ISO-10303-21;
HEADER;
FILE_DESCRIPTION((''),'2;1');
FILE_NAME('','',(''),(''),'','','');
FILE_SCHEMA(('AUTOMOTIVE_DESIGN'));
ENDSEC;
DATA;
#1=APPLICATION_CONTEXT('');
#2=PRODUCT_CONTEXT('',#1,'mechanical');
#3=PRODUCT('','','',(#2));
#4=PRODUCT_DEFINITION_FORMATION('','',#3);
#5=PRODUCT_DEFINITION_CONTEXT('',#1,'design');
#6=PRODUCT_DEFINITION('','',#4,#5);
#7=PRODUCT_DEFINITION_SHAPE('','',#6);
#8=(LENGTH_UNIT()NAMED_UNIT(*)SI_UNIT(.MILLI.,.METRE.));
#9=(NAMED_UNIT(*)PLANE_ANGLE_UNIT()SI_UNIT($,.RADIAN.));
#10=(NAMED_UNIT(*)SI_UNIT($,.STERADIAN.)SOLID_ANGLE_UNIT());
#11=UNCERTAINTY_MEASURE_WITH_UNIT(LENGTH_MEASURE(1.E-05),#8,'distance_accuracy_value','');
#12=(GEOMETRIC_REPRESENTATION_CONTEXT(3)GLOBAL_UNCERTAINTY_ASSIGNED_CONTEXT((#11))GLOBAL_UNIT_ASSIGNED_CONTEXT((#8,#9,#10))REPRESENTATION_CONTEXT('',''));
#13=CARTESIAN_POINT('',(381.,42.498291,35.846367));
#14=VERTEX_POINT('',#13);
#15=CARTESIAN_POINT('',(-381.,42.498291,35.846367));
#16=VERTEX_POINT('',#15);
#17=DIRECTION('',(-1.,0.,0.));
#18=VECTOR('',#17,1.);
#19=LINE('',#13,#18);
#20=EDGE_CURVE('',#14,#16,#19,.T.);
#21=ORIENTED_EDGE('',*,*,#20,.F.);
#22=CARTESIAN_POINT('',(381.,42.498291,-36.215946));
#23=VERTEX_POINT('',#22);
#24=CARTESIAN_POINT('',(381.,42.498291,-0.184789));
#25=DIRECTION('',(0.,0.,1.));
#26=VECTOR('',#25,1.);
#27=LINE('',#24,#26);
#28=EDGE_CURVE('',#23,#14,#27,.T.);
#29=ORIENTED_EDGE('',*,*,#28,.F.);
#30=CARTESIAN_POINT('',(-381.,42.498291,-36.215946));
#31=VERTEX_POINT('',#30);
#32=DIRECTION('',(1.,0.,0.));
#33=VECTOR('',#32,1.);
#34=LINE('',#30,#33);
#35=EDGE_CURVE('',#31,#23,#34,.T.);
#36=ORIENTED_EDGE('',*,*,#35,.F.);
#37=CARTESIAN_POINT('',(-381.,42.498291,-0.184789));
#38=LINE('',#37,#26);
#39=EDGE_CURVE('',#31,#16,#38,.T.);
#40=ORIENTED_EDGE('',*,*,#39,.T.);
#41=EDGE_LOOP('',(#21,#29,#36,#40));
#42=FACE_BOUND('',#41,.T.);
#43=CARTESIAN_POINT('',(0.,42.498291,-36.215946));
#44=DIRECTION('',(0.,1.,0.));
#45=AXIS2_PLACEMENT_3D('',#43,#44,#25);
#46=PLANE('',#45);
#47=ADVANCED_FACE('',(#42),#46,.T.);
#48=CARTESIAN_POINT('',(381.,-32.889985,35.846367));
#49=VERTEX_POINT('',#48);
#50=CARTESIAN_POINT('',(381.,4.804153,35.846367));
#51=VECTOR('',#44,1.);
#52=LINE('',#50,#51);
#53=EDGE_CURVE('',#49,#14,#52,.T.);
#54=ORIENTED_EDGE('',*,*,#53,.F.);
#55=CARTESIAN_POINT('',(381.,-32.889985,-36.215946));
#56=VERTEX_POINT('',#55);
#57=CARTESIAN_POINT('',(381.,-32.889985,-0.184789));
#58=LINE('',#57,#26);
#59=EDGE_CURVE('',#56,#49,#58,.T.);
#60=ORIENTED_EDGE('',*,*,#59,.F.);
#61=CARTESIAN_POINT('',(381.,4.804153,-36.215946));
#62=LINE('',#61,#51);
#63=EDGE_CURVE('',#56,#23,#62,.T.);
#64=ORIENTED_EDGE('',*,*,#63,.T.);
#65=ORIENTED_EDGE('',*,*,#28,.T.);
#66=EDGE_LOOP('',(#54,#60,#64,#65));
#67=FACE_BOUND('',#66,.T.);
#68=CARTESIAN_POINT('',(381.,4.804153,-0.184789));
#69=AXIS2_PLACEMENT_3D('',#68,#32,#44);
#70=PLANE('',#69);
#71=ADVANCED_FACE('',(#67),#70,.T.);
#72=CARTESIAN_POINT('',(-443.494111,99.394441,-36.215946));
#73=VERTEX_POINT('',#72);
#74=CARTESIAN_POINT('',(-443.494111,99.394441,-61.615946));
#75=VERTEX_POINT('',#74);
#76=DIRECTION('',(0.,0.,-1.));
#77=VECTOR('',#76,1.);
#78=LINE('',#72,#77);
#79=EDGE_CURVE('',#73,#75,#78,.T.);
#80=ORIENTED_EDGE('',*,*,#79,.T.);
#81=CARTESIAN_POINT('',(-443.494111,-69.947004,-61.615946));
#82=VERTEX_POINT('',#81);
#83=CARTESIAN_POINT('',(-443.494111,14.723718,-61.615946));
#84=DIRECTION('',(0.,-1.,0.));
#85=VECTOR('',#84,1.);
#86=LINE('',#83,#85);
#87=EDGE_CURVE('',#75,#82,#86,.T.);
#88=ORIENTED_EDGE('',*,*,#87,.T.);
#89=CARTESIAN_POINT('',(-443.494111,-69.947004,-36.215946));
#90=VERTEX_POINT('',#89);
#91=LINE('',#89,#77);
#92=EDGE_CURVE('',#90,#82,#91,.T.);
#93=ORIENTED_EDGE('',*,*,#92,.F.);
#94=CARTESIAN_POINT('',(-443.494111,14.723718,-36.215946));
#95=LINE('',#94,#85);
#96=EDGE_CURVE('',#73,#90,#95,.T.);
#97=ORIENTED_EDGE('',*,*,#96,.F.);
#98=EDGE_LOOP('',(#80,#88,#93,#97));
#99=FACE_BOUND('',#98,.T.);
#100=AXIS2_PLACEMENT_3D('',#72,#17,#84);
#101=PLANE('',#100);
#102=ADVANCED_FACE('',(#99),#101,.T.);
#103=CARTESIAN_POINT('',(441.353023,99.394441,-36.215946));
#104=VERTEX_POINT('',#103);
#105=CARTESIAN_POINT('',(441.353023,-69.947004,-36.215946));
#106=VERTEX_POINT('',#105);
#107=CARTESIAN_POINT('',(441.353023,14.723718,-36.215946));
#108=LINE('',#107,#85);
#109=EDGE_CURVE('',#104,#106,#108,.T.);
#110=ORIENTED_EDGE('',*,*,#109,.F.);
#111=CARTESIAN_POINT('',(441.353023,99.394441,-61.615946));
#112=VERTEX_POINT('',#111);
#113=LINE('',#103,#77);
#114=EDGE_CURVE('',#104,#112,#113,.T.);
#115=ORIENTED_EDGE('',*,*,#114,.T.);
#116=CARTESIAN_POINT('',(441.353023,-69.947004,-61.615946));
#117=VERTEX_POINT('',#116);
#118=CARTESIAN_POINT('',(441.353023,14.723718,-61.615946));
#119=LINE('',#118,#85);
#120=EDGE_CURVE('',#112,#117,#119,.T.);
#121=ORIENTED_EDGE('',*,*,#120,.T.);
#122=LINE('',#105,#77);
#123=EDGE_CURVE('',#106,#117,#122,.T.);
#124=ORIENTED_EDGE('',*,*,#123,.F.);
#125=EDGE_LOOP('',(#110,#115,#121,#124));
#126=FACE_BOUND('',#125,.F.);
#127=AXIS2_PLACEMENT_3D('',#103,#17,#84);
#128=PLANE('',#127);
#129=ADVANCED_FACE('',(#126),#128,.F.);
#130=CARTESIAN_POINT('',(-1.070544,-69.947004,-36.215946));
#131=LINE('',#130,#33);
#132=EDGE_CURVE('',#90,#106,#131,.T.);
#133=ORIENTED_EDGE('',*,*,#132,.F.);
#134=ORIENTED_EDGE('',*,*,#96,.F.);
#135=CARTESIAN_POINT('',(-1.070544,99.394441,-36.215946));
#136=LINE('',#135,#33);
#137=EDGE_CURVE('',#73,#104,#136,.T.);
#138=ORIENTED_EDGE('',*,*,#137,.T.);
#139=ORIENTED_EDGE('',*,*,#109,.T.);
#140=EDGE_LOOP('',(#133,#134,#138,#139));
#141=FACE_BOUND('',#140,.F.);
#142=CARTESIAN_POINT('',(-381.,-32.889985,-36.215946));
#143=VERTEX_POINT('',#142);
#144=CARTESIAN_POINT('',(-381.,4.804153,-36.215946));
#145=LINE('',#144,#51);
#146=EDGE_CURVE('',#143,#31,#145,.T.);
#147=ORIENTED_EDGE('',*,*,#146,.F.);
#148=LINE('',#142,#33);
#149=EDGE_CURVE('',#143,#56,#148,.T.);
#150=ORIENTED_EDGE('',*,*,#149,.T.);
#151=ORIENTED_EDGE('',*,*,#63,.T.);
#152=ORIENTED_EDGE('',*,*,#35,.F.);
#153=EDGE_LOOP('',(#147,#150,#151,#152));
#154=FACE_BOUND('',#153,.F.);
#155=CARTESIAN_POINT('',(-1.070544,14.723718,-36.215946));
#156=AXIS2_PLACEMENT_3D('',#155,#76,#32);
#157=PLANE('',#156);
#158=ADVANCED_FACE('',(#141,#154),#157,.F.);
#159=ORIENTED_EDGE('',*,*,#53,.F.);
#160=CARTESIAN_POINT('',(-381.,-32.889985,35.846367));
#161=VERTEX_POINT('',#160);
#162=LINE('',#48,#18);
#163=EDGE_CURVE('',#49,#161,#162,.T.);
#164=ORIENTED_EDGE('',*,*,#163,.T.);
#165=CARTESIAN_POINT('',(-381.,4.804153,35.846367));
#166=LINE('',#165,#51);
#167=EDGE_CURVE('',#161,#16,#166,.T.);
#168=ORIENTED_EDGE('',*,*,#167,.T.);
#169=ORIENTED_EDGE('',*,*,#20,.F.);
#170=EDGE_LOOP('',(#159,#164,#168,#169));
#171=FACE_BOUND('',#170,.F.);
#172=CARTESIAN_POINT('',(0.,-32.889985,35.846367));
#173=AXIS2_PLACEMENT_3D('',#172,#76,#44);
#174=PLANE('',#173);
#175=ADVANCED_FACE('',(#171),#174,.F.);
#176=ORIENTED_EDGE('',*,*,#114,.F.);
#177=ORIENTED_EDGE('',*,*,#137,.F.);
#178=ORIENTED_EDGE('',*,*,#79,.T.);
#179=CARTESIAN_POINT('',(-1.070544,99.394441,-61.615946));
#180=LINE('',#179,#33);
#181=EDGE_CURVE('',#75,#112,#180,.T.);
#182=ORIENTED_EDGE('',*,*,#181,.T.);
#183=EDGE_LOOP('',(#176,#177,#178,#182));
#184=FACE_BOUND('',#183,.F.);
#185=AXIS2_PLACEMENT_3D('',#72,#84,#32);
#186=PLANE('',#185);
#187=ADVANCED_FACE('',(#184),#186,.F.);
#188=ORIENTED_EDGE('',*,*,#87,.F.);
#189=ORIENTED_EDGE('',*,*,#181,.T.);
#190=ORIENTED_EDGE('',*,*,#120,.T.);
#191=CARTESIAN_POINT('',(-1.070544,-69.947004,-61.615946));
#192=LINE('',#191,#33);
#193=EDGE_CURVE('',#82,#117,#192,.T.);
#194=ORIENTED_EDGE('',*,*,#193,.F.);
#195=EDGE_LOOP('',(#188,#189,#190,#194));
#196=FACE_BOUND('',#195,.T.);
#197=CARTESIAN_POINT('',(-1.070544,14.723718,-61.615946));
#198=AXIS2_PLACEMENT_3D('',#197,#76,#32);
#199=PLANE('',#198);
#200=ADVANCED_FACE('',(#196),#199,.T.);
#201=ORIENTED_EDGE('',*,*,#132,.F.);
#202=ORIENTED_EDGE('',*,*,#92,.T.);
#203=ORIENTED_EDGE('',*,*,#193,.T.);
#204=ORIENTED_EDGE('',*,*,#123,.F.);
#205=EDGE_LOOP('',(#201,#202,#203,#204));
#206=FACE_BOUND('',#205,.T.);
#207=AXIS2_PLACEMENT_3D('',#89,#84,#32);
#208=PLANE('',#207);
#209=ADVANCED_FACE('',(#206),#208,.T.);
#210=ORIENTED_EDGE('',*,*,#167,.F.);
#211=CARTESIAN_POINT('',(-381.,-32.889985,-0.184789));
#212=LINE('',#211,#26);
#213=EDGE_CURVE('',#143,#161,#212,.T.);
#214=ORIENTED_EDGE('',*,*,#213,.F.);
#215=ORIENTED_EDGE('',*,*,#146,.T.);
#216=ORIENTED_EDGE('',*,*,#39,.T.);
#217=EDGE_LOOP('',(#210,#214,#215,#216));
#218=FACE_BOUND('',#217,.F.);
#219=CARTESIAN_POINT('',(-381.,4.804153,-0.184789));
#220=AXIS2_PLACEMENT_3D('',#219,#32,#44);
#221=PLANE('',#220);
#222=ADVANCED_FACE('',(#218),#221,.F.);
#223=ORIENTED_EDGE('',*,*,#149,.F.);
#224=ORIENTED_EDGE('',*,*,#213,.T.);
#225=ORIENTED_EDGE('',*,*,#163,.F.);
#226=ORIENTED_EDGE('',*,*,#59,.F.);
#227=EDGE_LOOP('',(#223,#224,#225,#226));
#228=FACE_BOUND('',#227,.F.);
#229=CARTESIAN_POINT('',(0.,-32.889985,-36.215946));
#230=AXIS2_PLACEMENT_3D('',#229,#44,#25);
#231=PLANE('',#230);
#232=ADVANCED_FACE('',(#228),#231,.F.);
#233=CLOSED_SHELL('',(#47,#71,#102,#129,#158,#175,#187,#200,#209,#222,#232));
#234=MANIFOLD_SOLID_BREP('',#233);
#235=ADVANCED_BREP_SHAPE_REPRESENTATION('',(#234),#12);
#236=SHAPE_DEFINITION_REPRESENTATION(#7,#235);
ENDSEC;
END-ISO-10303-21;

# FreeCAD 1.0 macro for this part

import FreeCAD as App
import Part
import Sketcher

V = App.Vector


def add_polygon(sketch, points):
    """Adds a closed chain of lines whose ends are joined by coincident constraints."""
    first, n = sketch.GeometryCount, len(points)
    for a, b in zip(points, points[1:] + points[:1]):
        sketch.addGeometry(Part.LineSegment(App.Vector(*a, 0), App.Vector(*b, 0)), False)
    for i in range(n):
        sketch.addConstraint(Sketcher.Constraint("Coincident", first + i, 2, first + (i + 1) % n, 1))

doc = App.newDocument("Part")
params = doc.addObject("Spreadsheet::Sheet", "Params")
for row, (alias, value) in enumerate([
    ("pad1_length", "30 in"),
    ("pad2_length", "1 in"),
], start=1):
    params.set(f"A{row}", alias)
    params.set(f"B{row}", "=" + value)
    params.setAlias(f"B{row}", alias)

body = doc.addObject("PartDesign::Body", "Body")

# Sketch on YZ plane
sketch1 = body.newObject("Sketcher::SketchObject", "Sketch")
sketch1.AttachmentSupport = (doc.getObject("YZ_Plane"), [""])
sketch1.MapMode = "FlatFace"
add_polygon(sketch1, [(-33, 36), (-33, -36), (42, -36), (42, 36)])  # lines 0-3
sketch1.addConstraint(Sketcher.Constraint("Vertical", 0))
sketch1.addConstraint(Sketcher.Constraint("Horizontal", 1))
sketch1.addConstraint(Sketcher.Constraint("Vertical", 2))
sketch1.addConstraint(Sketcher.Constraint("Horizontal", 3))
sketch1.addConstraint(Sketcher.Constraint("DistanceX", 1, 1, 1, 2, 75.388275))
sketch1.addConstraint(Sketcher.Constraint("DistanceY", 0, 2, 0, 1, 72.062314))
sketch1.addConstraint(Sketcher.Constraint("DistanceX", -1, 1, 1, 2, 42.498291))
sketch1.addConstraint(Sketcher.Constraint("DistanceY", 0, 2, -1, 1, 36.215946))
pad1 = body.newObject("PartDesign::Pad", "Pad")
pad1.Profile = sketch1
pad1.setExpression("Length", "Params.pad1_length")
pad1.Midplane = True

# Sketch on XY plane
sketch2 = body.newObject("Sketcher::SketchObject", "Sketch001")
sketch2.AttachmentSupport = (doc.getObject("XY_Plane"), [""])
sketch2.MapMode = "FlatFace"
sketch2.AttachmentOffset = App.Placement(V(0, 0, -36.215946), App.Rotation())
add_polygon(sketch2, [(-443, -70), (-443, 99), (441, 99), (441, -70)])  # lines 0-3
sketch2.addConstraint(Sketcher.Constraint("Vertical", 0))
sketch2.addConstraint(Sketcher.Constraint("Horizontal", 1))
sketch2.addConstraint(Sketcher.Constraint("Vertical", 2))
sketch2.addConstraint(Sketcher.Constraint("Horizontal", 3))
sketch2.addConstraint(Sketcher.Constraint("DistanceX", 1, 1, 1, 2, 884.847134))
sketch2.addConstraint(Sketcher.Constraint("DistanceY", 0, 1, 0, 2, 169.341445))
sketch2.addConstraint(Sketcher.Constraint("DistanceX", 0, 2, -1, 1, 443.494111))
sketch2.addConstraint(Sketcher.Constraint("DistanceY", -1, 1, 0, 2, 99.394441))
pad2 = body.newObject("PartDesign::Pad", "Pad001")
pad2.Profile = sketch2
pad2.setExpression("Length", "Params.pad2_length")
pad2.Reversed = True

doc.recompute()
